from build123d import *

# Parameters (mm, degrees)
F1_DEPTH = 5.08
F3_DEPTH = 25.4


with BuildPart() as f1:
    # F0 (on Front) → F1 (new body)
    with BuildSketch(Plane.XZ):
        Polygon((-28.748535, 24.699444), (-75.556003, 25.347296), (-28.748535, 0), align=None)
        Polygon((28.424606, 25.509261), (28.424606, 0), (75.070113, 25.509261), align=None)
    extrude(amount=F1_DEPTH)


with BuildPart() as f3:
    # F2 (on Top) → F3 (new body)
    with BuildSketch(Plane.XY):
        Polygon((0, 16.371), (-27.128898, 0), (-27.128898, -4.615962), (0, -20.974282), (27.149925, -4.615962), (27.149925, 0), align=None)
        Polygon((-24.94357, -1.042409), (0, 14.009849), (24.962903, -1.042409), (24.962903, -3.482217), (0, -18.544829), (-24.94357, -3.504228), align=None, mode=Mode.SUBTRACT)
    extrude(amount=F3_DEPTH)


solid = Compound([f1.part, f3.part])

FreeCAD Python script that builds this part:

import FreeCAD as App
import Part
import Sketcher
Q = App.Units.Quantity


def add_polygon(sketch, points):
    """Adds a closed chain of lines whose ends are joined by coincident constraints."""
    first, n = sketch.GeometryCount, len(points)
    for a, b in zip(points, points[1:] + points[:1]):
        sketch.addGeometry(Part.LineSegment(App.Vector(*a, 0), App.Vector(*b, 0)), False)
    for i in range(n):
        sketch.addConstraint(Sketcher.Constraint("Coincident", first + i, 2, first + (i + 1) % n, 1))

doc = App.newDocument("Part")
body = doc.addObject("PartDesign::Body", "Body")
body.AllowCompound = True

sketch1 = doc.addObject("Sketcher::SketchObject", "Sketch")
body.addObject(sketch1)
sketch1.AttachmentSupport = (doc.XZ_Plane, [""])
sketch1.MapMode = "FlatFace"
add_polygon(sketch1, [(-29, 25), (-76, 25), (-29, 0)])
add_polygon(sketch1, [(28, 26), (28, 0), (75, 26)])
sketch1.addConstraint([
    Sketcher.Constraint("Vertical", 2),
    Sketcher.Constraint("Vertical", 3),
    Sketcher.Constraint("Horizontal", 5),
    Sketcher.Constraint("PointOnObject", 1, 2, -1),
    Sketcher.Constraint("PointOnObject", 3, 2, -1),
    Sketcher.Constraint("DistanceY", 3, 2, 3, 1, Q("25.509261 mm")),
    Sketcher.Constraint("Distance", 0, Q("46.811951 mm")),
    Sketcher.Constraint("Distance", 1, Q("53.229921 mm")),
    Sketcher.Constraint("Distance", 4, Q("53.16508 mm")),
    Sketcher.Constraint("DistanceY", 2, 1, 2, 2, Q("24.699444 mm")),
    Sketcher.Constraint("DistanceX", 1, 2, 3, 2, Q("57.173141 mm")),
    Sketcher.Constraint("DistanceX", 0, 2, -1, 1, Q("75.556003 mm")),
])
pad1 = doc.addObject("PartDesign::Pad", "Pad")
body.addObject(pad1)
pad1.Profile = sketch1
pad1.Length = Q("0.2 in")
body2 = doc.addObject("PartDesign::Body", "Body001")

sketch2 = doc.addObject("Sketcher::SketchObject", "Sketch001")
body2.addObject(sketch2)
sketch2.AttachmentSupport = (doc.getObject("XY_Plane001"), [""])
sketch2.MapMode = "FlatFace"
add_polygon(sketch2, [(0, 16.4), (-27.1, 0), (-27.1, -4.6), (0, -21), (27.1, -4.6), (27.1, 0)])
add_polygon(sketch2, [(-24.9, -3.5), (-24.9, -1), (0, 14), (25, -1), (25, -3.5), (0, -18.5)])
sketch2.addConstraint([
    Sketcher.Constraint("Vertical", 1),
    Sketcher.Constraint("Vertical", 4),
    Sketcher.Constraint("Vertical", 6),
    Sketcher.Constraint("Vertical", 9),
    Sketcher.Constraint("PointOnObject", 0, 2, -1),
    Sketcher.Constraint("PointOnObject", 2, 2, -2),
    Sketcher.Constraint("PointOnObject", 4, 2, -1),
    Sketcher.Constraint("PointOnObject", 5, 2, -2),
    Sketcher.Constraint("PointOnObject", 7, 2, -2),
    Sketcher.Constraint("PointOnObject", 10, 2, -2),
    Sketcher.Constraint("Parallel", 2, 5),
    Sketcher.Constraint("Parallel", 0, 7),
    Sketcher.Constraint("Parallel", 5, 8),
    Sketcher.Constraint("Parallel", 8, 11),
    Sketcher.Constraint("Horizontal", 1, 2, 3, 2),
    Sketcher.Constraint("Horizontal", 6, 2, 8, 2),
    Sketcher.Constraint("Distance", 2, Q("31.6792 mm")),
    Sketcher.Constraint("DistanceY", 1, 2, 1, 1, Q("4.615962 mm")),
    Sketcher.Constraint("DistanceY", 6, 1, 6, 2, Q("2.461819 mm")),
    Sketcher.Constraint("DistanceY", 9, 2, 9, 1, Q("2.439808 mm")),
    Sketcher.Constraint("DistanceY", -1, 1, 5, 2, Q("16.371 mm")),
    Sketcher.Constraint("DistanceY", 10, 2, 11, 2, Q("15.040601 mm")),
    Sketcher.Constraint("Distance", 0, Q("31.68575 mm")),
    Sketcher.Constraint("DistanceY", 6, 2, -1, 1, Q("1.042409 mm")),
])
pad2 = doc.addObject("PartDesign::Pad", "Pad001")
body2.addObject(pad2)
pad2.Profile = sketch2
pad2.Length = Q("1 in")

doc.recompute()
